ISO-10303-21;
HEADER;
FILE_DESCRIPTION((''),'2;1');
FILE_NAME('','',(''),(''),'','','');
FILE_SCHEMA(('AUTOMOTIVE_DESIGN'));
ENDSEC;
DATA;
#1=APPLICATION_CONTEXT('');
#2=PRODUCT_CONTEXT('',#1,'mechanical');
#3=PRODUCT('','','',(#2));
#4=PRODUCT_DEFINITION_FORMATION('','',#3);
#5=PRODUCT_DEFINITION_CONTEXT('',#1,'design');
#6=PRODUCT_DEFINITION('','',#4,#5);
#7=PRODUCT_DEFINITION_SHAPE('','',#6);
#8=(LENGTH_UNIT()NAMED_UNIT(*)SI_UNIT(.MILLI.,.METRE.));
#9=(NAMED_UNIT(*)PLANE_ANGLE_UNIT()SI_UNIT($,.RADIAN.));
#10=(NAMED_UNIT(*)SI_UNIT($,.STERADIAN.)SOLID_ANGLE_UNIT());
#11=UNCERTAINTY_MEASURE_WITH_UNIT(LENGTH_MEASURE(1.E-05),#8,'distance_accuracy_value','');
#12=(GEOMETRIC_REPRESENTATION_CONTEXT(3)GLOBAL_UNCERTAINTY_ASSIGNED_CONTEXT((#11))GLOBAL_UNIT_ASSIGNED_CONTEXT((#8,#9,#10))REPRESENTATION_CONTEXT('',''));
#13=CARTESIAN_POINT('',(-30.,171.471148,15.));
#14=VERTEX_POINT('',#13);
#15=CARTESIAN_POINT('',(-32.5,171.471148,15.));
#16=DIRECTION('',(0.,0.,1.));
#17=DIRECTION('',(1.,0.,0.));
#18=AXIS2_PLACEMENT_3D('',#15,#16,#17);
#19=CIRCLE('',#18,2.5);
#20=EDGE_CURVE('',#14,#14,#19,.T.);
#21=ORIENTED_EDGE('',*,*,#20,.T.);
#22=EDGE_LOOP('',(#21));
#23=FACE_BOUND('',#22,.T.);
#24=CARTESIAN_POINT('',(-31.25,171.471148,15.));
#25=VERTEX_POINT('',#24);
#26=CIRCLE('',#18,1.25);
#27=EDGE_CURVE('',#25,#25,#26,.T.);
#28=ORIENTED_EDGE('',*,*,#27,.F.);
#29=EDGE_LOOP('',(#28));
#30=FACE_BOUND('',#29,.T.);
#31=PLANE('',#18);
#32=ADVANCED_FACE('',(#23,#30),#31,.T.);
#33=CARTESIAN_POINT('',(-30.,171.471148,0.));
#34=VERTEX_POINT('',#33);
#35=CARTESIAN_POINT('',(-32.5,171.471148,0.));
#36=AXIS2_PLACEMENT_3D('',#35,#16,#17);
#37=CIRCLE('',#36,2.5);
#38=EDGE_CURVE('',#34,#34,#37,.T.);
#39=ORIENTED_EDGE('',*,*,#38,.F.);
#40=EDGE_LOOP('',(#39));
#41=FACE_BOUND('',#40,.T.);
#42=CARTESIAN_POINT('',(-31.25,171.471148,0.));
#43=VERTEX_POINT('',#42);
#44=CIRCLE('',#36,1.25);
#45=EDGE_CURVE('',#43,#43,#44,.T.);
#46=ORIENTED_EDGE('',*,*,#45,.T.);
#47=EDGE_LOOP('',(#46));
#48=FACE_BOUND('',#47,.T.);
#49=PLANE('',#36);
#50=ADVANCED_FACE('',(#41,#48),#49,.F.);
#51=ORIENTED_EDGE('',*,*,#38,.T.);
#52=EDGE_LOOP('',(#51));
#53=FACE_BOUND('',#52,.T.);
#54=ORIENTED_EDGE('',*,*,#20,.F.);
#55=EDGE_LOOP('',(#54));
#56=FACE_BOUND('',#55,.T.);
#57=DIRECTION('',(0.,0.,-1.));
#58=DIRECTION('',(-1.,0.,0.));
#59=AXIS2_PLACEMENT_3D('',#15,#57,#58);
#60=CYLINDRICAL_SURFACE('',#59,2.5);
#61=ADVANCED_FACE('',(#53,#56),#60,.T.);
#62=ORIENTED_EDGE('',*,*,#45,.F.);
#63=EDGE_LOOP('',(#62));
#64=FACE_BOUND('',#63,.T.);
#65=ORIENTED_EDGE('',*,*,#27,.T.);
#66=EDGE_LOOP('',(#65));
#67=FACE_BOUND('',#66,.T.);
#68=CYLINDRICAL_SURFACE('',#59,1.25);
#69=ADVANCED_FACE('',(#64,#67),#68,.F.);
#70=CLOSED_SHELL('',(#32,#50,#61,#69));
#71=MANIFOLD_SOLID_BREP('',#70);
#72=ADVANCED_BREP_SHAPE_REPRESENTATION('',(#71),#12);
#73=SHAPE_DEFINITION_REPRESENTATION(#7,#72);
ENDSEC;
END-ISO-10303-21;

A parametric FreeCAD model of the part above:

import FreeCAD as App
import Part
import Sketcher

V = App.Vector
Q = App.Units.Quantity

doc = App.newDocument("Part")
params = doc.addObject("Spreadsheet::Sheet", "Params")
for row, (alias, value) in enumerate([
    ("sketch1_diameter", "5 mm"),
    ("sketch1_diameter2", "2.5 mm"),
    ("pad1_length", "15 mm"),
], start=1):
    params.set(f"A{row}", alias)
    params.set(f"B{row}", "=" + value)
    params.setAlias(f"B{row}", alias)

body = doc.addObject("PartDesign::Body", "Body")

sketch1 = body.newObject("Sketcher::SketchObject", "Sketch")
sketch1.AttachmentSupport = (doc.getObject("XY_Plane"), [""])
sketch1.MapMode = "FlatFace"
sketch1.addGeometry(Part.Circle(V(-32.5, 171.5, 0), V(0, 0, 1), 2.5), False)
sketch1.addGeometry(Part.Circle(V(-32.5, 171.5, 0), V(0, 0, 1), 1.2), False)
sketch1.addConstraint(Sketcher.Constraint("Coincident", 1, 3, 0, 3))
sketch1.addConstraint(Sketcher.Constraint("Diameter", 0, Q("5 mm")))
sketch1.addConstraint(Sketcher.Constraint("Diameter", 1, Q("2.5 mm")))
sketch1.addConstraint(Sketcher.Constraint("DistanceX", 0, 3, -1, 1, Q("32.5 mm")))
sketch1.addConstraint(Sketcher.Constraint("DistanceY", -1, 1, 0, 3, Q("171.471148 mm")))
sketch1.setExpression("Constraints[1]", "Params.sketch1_diameter")
sketch1.setExpression("Constraints[2]", "Params.sketch1_diameter2")
pad1 = body.newObject("PartDesign::Pad", "Pad")
pad1.Profile = sketch1
pad1.setExpression("Length", "Params.pad1_length")

doc.recompute()
